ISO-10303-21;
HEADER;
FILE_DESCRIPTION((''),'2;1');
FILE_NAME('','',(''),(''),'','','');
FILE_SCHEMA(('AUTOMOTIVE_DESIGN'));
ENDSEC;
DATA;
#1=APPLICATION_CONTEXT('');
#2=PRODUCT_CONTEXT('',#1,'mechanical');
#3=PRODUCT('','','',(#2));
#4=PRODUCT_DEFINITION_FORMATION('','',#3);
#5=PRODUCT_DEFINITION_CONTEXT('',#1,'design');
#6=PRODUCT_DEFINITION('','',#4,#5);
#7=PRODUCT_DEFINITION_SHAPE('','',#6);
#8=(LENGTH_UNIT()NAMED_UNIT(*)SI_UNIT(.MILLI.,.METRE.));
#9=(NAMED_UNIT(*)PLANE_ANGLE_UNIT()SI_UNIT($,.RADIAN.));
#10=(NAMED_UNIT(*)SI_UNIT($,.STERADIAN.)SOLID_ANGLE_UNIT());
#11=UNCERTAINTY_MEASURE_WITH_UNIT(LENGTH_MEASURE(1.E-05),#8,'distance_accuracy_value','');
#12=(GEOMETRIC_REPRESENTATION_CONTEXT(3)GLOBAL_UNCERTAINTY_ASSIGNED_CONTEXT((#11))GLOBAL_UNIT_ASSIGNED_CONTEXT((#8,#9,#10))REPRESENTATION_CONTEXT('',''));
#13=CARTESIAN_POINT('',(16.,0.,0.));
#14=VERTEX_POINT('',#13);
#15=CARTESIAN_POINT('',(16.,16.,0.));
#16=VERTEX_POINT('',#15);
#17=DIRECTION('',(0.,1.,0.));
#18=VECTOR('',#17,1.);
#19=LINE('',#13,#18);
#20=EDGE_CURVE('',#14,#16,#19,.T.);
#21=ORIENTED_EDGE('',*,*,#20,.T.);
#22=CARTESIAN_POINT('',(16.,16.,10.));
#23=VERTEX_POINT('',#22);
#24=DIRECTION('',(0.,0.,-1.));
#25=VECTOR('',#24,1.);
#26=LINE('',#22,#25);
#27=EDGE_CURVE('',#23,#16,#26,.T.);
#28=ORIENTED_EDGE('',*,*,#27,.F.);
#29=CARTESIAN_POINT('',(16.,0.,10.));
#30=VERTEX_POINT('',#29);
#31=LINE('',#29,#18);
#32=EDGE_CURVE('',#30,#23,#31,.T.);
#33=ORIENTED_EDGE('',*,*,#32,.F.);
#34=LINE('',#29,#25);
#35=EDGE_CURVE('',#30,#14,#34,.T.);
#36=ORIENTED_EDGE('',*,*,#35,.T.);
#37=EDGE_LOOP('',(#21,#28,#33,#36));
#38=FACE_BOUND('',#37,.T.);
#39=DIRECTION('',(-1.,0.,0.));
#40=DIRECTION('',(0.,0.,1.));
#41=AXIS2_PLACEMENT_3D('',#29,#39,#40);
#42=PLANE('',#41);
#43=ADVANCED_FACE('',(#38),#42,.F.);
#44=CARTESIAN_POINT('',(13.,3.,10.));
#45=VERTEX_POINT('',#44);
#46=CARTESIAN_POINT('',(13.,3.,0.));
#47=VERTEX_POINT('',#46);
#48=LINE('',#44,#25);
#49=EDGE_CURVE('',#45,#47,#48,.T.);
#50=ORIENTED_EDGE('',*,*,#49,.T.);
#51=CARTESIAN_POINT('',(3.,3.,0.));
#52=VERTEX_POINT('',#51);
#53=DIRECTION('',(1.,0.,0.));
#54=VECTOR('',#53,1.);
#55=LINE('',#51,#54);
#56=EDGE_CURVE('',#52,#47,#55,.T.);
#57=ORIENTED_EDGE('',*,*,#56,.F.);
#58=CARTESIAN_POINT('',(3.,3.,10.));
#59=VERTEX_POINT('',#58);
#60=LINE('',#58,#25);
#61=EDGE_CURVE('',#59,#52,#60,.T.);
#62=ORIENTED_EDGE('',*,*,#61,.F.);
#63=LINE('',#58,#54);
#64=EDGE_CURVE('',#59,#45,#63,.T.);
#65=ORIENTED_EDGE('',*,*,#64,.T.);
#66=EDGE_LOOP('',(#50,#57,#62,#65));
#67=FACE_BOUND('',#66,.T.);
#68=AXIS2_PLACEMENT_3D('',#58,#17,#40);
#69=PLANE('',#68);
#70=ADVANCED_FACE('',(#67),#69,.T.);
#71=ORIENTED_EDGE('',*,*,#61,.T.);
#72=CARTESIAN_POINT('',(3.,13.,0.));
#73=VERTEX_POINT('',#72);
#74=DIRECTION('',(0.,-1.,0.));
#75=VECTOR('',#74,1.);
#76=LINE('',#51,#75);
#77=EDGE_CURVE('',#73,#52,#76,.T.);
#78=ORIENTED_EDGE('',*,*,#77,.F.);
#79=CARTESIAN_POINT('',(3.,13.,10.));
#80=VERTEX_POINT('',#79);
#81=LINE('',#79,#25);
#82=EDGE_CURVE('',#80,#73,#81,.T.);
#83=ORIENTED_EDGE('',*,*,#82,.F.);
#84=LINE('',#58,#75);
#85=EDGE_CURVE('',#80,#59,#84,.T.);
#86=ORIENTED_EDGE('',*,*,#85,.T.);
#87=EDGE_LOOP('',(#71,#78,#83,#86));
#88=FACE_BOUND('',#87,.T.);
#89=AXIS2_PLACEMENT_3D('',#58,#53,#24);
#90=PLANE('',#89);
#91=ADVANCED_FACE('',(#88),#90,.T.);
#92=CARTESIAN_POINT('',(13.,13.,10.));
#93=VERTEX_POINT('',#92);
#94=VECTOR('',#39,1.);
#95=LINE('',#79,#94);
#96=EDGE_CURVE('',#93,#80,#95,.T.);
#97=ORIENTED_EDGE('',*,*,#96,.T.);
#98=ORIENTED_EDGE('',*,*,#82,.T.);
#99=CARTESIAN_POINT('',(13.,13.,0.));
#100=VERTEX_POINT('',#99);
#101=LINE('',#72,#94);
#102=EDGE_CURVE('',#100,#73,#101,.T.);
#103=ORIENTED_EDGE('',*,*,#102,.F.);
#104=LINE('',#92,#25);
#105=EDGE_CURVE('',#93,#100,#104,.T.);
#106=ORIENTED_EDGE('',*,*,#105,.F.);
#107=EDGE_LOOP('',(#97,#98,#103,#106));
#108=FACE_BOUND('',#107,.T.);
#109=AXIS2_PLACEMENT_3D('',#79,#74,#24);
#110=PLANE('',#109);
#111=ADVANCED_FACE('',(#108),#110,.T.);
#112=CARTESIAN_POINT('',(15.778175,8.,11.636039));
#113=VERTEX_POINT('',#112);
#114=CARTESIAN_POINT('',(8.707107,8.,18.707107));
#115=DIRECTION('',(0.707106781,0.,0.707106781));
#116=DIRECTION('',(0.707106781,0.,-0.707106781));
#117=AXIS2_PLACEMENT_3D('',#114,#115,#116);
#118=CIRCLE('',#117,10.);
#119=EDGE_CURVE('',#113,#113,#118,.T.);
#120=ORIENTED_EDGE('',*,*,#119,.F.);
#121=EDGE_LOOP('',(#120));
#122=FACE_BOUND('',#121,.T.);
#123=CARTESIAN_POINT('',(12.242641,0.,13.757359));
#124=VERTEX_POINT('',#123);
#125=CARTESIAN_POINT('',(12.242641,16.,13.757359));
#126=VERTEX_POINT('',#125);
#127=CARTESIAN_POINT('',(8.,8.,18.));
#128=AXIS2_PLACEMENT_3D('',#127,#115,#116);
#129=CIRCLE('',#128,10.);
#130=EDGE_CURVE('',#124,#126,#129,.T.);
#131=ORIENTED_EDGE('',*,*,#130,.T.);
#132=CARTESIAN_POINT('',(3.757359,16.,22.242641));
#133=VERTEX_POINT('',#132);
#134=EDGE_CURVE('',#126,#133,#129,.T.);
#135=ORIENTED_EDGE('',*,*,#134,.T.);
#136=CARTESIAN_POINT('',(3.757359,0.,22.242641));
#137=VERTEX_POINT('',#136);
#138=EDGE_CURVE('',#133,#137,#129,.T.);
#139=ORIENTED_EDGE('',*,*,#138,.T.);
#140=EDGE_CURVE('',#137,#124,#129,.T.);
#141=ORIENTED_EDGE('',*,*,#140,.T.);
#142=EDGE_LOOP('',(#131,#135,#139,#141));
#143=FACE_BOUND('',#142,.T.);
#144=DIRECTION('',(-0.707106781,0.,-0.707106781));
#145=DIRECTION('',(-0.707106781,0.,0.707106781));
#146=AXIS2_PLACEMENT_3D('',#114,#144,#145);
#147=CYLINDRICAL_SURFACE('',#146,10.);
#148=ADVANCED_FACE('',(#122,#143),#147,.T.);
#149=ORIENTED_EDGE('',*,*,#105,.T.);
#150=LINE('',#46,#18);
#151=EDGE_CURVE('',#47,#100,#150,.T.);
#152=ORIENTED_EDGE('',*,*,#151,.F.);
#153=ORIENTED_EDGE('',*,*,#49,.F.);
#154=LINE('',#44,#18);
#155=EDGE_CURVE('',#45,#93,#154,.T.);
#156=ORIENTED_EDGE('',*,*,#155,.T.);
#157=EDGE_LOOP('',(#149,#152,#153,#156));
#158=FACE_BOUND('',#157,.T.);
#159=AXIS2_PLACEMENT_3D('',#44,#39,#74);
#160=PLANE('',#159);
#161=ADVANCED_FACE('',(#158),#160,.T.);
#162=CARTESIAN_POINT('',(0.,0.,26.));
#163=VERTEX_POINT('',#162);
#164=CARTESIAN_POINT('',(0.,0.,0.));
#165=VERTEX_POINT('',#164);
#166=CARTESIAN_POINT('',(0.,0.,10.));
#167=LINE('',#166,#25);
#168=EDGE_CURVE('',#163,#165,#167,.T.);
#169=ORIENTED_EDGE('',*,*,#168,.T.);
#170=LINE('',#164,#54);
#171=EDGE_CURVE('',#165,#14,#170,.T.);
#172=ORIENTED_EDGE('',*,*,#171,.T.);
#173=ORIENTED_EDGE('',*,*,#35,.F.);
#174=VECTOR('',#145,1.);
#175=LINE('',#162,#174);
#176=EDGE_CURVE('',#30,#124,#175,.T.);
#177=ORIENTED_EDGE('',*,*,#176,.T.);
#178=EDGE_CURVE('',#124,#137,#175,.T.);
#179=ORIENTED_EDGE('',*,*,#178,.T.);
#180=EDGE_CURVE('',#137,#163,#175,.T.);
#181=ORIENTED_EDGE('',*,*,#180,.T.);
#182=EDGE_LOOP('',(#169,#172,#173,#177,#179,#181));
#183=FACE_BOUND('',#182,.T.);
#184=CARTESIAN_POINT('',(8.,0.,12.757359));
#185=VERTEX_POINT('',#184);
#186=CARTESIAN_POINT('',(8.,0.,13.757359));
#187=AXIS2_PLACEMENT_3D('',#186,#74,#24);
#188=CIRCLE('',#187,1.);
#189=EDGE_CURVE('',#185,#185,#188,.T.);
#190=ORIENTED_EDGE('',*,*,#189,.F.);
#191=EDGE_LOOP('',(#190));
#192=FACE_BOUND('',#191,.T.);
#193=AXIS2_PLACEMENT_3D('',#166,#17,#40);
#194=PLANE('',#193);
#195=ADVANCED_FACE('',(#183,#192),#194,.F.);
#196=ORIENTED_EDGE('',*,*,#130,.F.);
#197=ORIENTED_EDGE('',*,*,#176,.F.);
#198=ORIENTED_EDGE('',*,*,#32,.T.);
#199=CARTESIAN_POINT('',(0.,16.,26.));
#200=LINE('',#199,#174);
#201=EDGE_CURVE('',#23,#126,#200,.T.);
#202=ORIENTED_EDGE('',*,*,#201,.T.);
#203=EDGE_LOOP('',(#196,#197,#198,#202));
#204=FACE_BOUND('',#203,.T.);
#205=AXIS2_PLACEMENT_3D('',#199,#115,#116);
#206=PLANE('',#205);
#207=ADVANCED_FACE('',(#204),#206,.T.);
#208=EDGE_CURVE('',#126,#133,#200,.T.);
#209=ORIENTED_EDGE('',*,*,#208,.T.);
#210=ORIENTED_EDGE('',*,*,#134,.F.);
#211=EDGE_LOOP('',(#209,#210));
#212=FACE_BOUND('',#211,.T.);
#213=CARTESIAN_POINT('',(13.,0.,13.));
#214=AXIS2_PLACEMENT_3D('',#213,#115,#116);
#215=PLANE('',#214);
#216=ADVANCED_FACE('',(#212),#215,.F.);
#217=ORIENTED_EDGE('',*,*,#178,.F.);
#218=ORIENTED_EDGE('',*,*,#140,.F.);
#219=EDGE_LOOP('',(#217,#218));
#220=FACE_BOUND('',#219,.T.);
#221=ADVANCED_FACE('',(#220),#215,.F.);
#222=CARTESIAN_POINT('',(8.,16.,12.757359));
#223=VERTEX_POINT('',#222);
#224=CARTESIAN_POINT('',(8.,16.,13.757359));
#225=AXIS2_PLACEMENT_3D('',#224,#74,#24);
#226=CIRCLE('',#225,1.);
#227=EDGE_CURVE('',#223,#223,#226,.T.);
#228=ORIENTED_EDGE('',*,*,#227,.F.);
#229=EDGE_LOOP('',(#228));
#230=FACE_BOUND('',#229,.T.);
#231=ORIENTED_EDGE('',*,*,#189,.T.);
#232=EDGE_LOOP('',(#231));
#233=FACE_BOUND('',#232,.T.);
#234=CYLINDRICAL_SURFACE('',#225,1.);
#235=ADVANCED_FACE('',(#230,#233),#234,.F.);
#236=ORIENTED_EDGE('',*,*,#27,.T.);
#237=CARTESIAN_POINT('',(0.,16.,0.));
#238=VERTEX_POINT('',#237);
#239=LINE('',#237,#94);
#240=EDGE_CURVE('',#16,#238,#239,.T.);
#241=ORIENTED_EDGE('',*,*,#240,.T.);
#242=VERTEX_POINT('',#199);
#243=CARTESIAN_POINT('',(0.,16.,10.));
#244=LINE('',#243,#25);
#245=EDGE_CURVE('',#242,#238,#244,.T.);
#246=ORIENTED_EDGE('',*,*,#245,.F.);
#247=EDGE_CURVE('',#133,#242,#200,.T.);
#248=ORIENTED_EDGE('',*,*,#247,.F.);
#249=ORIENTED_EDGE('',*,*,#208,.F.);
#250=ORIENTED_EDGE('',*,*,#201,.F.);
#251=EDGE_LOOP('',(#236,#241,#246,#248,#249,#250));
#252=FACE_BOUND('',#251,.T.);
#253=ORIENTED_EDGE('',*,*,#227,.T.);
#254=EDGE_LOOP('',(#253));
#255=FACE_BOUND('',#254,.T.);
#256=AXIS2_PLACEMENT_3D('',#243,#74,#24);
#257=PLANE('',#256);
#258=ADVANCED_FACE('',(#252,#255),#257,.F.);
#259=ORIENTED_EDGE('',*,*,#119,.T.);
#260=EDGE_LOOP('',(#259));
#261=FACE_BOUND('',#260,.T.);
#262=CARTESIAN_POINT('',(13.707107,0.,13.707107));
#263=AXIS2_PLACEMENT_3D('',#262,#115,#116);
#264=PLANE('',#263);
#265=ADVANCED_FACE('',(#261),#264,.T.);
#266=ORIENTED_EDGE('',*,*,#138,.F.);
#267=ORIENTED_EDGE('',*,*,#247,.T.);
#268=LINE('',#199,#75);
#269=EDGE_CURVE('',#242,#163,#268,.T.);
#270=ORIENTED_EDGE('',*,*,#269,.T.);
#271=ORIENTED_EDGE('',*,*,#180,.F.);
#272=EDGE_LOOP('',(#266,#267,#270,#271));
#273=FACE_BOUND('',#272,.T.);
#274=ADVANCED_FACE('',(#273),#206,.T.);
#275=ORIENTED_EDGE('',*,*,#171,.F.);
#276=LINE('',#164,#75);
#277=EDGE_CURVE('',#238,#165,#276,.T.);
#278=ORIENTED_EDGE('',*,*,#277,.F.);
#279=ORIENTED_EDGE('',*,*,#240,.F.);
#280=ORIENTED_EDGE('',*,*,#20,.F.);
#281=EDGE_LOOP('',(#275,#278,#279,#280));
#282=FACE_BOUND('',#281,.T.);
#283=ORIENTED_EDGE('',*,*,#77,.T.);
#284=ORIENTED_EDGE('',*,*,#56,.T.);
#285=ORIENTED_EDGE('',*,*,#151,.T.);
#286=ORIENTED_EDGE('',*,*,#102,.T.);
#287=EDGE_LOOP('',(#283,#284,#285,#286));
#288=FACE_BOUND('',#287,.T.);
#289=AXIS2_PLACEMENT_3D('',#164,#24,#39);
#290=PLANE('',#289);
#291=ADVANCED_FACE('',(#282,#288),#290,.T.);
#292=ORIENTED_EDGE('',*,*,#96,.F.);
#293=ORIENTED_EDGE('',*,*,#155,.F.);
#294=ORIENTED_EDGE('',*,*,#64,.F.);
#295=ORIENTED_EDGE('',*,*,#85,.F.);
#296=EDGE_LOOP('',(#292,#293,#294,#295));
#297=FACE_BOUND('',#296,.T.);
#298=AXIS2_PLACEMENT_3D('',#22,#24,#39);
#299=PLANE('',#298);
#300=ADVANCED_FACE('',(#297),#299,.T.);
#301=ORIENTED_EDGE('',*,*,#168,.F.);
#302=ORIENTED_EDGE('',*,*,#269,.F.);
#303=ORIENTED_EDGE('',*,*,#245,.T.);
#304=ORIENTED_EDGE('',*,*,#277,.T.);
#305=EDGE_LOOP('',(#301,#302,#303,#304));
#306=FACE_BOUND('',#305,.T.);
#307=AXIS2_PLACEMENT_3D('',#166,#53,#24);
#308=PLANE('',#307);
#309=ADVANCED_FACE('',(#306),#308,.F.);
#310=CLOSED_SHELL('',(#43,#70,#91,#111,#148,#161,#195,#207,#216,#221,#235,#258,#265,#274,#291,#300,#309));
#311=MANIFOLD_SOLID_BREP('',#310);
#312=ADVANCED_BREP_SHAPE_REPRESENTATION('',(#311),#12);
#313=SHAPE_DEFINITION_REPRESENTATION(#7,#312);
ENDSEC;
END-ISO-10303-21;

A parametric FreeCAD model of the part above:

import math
import FreeCAD as App
import Part
import Sketcher

V = App.Vector

doc = App.newDocument("Part")
body = doc.addObject("PartDesign::Body", "Body")

# Sketch on XY plane
sketch1 = doc.addObject("Sketcher::SketchObject", "Sketch")
body.addObject(sketch1)
sketch1.AttachmentSupport = (doc.XY_Plane, [""])
sketch1.MapMode = "FlatFace"
sketch1.addGeometry([
    Part.LineSegment(V(0, 16, 0), V(0, 0, 0)),  # 0
    Part.LineSegment(V(0, 0, 0), V(16, 0, 0)),  # 1
    Part.LineSegment(V(16, 0, 0), V(16, 16, 0)),  # 2
    Part.LineSegment(V(16, 16, 0), V(0, 16, 0)),  # 3
    Part.LineSegment(V(13, 3, 0), V(3, 3, 0)),  # 4
    Part.LineSegment(V(3, 3, 0), V(3, 13, 0)),  # 5
    Part.LineSegment(V(3, 13, 0), V(13, 13, 0)),  # 6
    Part.LineSegment(V(13, 13, 0), V(13, 3, 0)),  # 7
], False)
sketch1.addConstraint([
    Sketcher.Constraint("Coincident", 0, 2, 1, 1),
    Sketcher.Constraint("Coincident", 1, 2, 2, 1),
    Sketcher.Constraint("Coincident", 2, 2, 3, 1),
    Sketcher.Constraint("Coincident", 3, 2, 0, 1),
    Sketcher.Constraint("Coincident", 4, 2, 5, 1),
    Sketcher.Constraint("Coincident", 5, 2, 6, 1),
    Sketcher.Constraint("Coincident", 6, 2, 7, 1),
    Sketcher.Constraint("Coincident", 7, 2, 4, 1),
    Sketcher.Constraint("Vertical", 0),
    Sketcher.Constraint("Horizontal", 1),
    Sketcher.Constraint("Vertical", 2),
    Sketcher.Constraint("Horizontal", 3),
    Sketcher.Constraint("Horizontal", 4),
    Sketcher.Constraint("Vertical", 5),
    Sketcher.Constraint("Horizontal", 6),
    Sketcher.Constraint("Vertical", 7),
    Sketcher.Constraint("Coincident", 0, 2, -1, 1),
    Sketcher.Constraint("Equal", 3, 0),
    Sketcher.Constraint("Equal", 6, 5),
    Sketcher.Constraint("DistanceX", 1, 1, 1, 2, 16.0),
    Sketcher.Constraint("DistanceX", 4, 2, 4, 1, 10.0),
    Sketcher.Constraint("DistanceX", -1, 1, 4, 2, 3.0),
    Sketcher.Constraint("DistanceY", -1, 1, 4, 2, 3.0),
])
pad1 = doc.addObject("PartDesign::Pad", "Pad")
body.addObject(pad1)
pad1.Profile = sketch1
pad1.Length = 10

# Sketch on XZ plane
sketch2 = doc.addObject("Sketcher::SketchObject", "Sketch001")
body.addObject(sketch2)
sketch2.AttachmentSupport = (doc.XZ_Plane, [""])
sketch2.MapMode = "FlatFace"
sketch2.addGeometry([
    Part.LineSegment(V(0, 26, 0), V(0, 10, 0)),
    Part.LineSegment(V(0, 10, 0), V(16, 10, 0)),
    Part.LineSegment(V(16, 10, 0), V(0, 26, 0)),
], False)
sketch2.addConstraint([
    Sketcher.Constraint("Coincident", 0, 2, 1, 1),
    Sketcher.Constraint("Coincident", 1, 2, 2, 1),
    Sketcher.Constraint("Coincident", 2, 2, 0, 1),
    Sketcher.Constraint("Vertical", 0),
    Sketcher.Constraint("Horizontal", 1),
    Sketcher.Constraint("PointOnObject", 0, 2, -2),
    Sketcher.Constraint("Equal", 1, 0),
    Sketcher.Constraint("DistanceX", 1, 1, 1, 2, 16.0),
    Sketcher.Constraint("DistanceY", -1, 1, 0, 2, 10.0),
])
pad2 = doc.addObject("PartDesign::Pad", "Pad001")
body.addObject(pad2)
pad2.Profile = sketch2
pad2.Length = 16
pad2.Reversed = True

# Sketch on an angled plane
sketch3 = doc.addObject("Sketcher::SketchObject", "Sketch002")
body.addObject(sketch3)
sketch3.Placement = App.Placement(V(13, 0, 13), App.Rotation(V(0.707106781, 0, -0.707106781), V(0, 0.999999999, 0), V(0.707106781, 0, 0.707106781), "ZXY"))
sketch3.addGeometry(Part.Circle(V(-7, 8, 0), V(0, 0, 1), 10), False)
sketch3.addConstraint([
    Sketcher.Constraint("Diameter", 0, 20.0),
    Sketcher.Constraint("DistanceY", -1, 1, 0, 3, 8.0),
    Sketcher.Constraint("DistanceX", 0, 3, -1, 1, 7.071068),
])
pad3 = doc.addObject("PartDesign::Pad", "Pad002")
body.addObject(pad3)
pad3.Profile = sketch3
pad3.Length = 1

# Sketch on XZ plane
sketch4 = doc.addObject("Sketcher::SketchObject", "Sketch003")
body.addObject(sketch4)
sketch4.AttachmentSupport = (doc.XZ_Plane, [""])
sketch4.MapMode = "FlatFace"
sketch4.addGeometry([
    Part.ArcOfCircle(Part.Circle(V(8, 13.8, 0), V(0, 0, 1), 1), math.radians(135), math.radians(180)),
    Part.ArcOfCircle(Part.Circle(V(8, 13.8, 0), V(0, 0, 1), 1), math.radians(-180), math.radians(-90)),
    Part.ArcOfCircle(Part.Circle(V(8, 13.8, 0), V(0, 0, 1), 1), math.radians(-90), math.radians(-45)),
    Part.ArcOfCircle(Part.Circle(V(8, 13.8, 0), V(0, 0, 1), 1), math.radians(-45), math.radians(135)),
], False)
sketch4.addConstraint([
    Sketcher.Constraint("Tangent", 0, 2, 1, 1),
    Sketcher.Constraint("Tangent", 1, 2, 2, 1),
    Sketcher.Constraint("Tangent", 2, 2, 3, 1),
    Sketcher.Constraint("Tangent", 3, 2, 0, 1),
    Sketcher.Constraint("Equal", 0, 1),
    Sketcher.Constraint("Horizontal", 3, 3, 0, 2),
    Sketcher.Constraint("Vertical", 3, 3, 1, 2),
    Sketcher.Constraint("Radius", 0, 1.0),
    Sketcher.Constraint("DistanceX", -1, 1, 0, 3, 8.0),
    Sketcher.Constraint("DistanceY", -1, 1, 0, 3, 13.757359),
    Sketcher.Constraint("DistanceX", -1, 1, 2, 2, 8.707107),
    Sketcher.Constraint("DistanceX", -1, 1, 3, 2, 7.292893),
])
pocket1 = doc.addObject("PartDesign::Pocket", "Pocket")
body.addObject(pocket1)
pocket1.Profile = sketch4
pocket1.Length = 16

doc.recompute()
